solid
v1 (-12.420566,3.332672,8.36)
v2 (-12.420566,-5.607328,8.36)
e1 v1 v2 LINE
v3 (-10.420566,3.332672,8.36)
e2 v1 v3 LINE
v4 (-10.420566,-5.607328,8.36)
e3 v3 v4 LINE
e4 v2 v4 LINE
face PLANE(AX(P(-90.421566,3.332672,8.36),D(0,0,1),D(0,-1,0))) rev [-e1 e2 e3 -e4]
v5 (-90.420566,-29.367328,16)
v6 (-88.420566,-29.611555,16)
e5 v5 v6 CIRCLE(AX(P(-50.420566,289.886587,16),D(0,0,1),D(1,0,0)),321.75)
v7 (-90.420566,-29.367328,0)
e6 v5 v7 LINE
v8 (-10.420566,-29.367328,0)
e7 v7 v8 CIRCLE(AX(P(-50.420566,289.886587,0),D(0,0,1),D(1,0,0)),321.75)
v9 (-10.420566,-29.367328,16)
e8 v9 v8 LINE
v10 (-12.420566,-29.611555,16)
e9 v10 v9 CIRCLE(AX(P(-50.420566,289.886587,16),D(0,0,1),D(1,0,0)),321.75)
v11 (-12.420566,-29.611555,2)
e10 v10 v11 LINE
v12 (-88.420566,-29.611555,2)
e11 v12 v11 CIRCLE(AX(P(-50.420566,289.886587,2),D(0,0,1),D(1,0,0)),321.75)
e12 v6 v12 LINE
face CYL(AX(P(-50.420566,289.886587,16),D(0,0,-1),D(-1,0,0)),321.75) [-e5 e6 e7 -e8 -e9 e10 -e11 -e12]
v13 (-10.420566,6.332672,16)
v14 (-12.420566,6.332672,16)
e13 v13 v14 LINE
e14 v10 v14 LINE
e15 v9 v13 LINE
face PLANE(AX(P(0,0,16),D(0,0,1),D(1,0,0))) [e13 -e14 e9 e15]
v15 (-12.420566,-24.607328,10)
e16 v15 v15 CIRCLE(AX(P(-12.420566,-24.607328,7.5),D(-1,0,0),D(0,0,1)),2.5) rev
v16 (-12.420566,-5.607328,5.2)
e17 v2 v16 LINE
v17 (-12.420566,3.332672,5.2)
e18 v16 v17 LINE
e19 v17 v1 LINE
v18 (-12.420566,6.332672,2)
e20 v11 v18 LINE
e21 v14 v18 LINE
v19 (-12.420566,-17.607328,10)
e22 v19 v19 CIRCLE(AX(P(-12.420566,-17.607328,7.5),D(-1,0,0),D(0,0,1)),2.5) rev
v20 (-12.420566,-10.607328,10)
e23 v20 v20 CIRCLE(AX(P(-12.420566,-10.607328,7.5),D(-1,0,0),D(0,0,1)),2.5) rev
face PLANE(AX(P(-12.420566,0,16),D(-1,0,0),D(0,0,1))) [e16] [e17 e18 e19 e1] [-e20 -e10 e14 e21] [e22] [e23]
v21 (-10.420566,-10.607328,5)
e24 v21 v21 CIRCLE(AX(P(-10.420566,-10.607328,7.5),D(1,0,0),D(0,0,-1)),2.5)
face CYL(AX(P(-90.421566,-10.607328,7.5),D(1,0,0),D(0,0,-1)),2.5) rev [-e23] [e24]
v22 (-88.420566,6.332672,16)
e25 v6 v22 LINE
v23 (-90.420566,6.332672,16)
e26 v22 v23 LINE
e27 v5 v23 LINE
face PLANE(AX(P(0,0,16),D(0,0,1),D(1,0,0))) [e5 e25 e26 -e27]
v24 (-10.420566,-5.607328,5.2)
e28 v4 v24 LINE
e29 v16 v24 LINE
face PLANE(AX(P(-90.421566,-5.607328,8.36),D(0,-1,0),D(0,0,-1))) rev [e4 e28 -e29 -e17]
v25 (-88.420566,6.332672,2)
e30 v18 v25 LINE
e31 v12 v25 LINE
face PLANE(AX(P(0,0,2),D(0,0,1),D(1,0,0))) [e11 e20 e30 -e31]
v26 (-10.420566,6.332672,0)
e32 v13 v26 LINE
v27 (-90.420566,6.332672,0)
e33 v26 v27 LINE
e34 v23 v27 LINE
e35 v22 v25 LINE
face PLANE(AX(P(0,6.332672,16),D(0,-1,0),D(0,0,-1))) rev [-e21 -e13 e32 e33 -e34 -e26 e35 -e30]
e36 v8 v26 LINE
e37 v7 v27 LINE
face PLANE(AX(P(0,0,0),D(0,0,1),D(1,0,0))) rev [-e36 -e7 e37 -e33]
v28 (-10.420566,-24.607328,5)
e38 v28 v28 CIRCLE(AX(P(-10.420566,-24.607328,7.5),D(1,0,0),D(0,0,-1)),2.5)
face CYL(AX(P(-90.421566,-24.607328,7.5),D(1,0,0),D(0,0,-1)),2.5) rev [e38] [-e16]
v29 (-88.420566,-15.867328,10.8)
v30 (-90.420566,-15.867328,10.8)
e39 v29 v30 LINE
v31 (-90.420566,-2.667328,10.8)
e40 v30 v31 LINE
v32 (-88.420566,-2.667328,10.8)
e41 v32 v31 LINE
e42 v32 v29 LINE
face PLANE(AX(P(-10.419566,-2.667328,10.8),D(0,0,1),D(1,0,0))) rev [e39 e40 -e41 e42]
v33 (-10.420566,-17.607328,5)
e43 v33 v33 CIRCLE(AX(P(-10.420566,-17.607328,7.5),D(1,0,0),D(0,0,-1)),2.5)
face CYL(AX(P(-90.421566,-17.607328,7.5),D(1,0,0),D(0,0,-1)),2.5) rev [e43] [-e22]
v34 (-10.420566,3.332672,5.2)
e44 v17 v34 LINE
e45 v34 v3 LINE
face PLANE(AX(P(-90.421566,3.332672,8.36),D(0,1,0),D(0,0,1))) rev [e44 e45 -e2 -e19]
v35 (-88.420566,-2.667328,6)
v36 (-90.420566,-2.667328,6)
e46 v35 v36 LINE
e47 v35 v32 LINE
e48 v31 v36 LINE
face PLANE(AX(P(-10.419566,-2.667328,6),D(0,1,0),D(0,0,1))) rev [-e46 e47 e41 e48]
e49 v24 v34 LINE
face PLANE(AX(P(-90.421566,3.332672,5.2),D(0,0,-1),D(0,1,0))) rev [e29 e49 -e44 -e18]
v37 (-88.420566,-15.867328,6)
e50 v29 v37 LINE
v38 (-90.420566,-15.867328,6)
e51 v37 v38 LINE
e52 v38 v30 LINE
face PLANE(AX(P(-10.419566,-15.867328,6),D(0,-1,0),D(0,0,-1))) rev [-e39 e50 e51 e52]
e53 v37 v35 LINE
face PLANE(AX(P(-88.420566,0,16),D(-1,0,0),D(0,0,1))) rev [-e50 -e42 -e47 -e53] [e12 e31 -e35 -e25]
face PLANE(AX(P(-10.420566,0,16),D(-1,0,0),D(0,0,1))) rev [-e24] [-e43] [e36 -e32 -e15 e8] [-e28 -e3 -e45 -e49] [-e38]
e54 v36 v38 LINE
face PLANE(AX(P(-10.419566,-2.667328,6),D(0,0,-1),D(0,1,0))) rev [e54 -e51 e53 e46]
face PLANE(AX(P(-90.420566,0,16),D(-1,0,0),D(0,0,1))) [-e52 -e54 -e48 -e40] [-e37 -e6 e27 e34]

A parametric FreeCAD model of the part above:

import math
import FreeCAD as App
import Part
import Sketcher

V = App.Vector
Q = App.Units.Quantity


def faces_at(feature, points):
    """Names of the faces that lie closest to the given points."""
    faces = feature.Shape.Faces
    near = lambda p: min(range(len(faces)), key=lambda i: faces[i].distToShape(Part.Vertex(*p))[0])
    return sorted({f"Face{near(p) + 1}" for p in points})

doc = App.newDocument("Part")
body = doc.addObject("PartDesign::Body", "Body")

# Sketch on XY plane
sketch1 = body.newObject("Sketcher::SketchObject", "Sketch")
sketch1.AttachmentSupport = (doc.getObject("XY_Plane"), [""])
sketch1.MapMode = "FlatFace"
sketch1.addGeometry(Part.LineSegment(V(-90, 6, 0), V(-90, -29, 0)), False)
sketch1.addGeometry(Part.ArcOfCircle(Part.Circle(V(-50, 290, 0), V(0, 0, 1), 322), math.radians(-97.14), math.radians(-82.86)), False)
sketch1.addGeometry(Part.LineSegment(V(-10, -29, 0), V(-10, 6, 0)), False)
sketch1.addGeometry(Part.LineSegment(V(-10, 6, 0), V(-90, 6, 0)), False)
sketch1.addConstraint(Sketcher.Constraint("Coincident", 0, 2, 1, 1))
sketch1.addConstraint(Sketcher.Constraint("Coincident", 1, 2, 2, 1))
sketch1.addConstraint(Sketcher.Constraint("Coincident", 2, 2, 3, 1))
sketch1.addConstraint(Sketcher.Constraint("Coincident", 3, 2, 0, 1))
sketch1.addConstraint(Sketcher.Constraint("Vertical", 0))
sketch1.addConstraint(Sketcher.Constraint("Vertical", 2))
sketch1.addConstraint(Sketcher.Constraint("Horizontal", 3))
sketch1.addConstraint(Sketcher.Constraint("Horizontal", 0, 2, 1, 2))
sketch1.addConstraint(Sketcher.Constraint("DistanceX", 3, 2, 3, 1, Q("80 mm")))
sketch1.addConstraint(Sketcher.Constraint("Radius", 1, Q("321.75 mm")))
sketch1.addConstraint(Sketcher.Constraint("DistanceY", 0, 2, 0, 1, Q("35.7 mm")))
sketch1.addConstraint(Sketcher.Constraint("DistanceY", 0, 2, -1, 1, Q("29.367328 mm")))
sketch1.addConstraint(Sketcher.Constraint("DistanceX", 1, 3, -1, 1, Q("50.420566 mm")))
pad1 = body.newObject("PartDesign::Pad", "Pad")
pad1.Profile = sketch1
pad1.Length = 16
doc.recompute()

thickness = body.newObject("PartDesign::Thickness", "Thickness")
thickness.Base = (pad1, faces_at(pad1, [(-50.421, -12.765, 16), (-50.421, 6.333, 8), (-50.421, -31.863, 8)]))
thickness.Value = 2
thickness.Reversed = True
thickness.Join = "Intersection"

# Sketch on YZ plane
sketch2 = body.newObject("Sketcher::SketchObject", "Sketch001")
sketch2.AttachmentSupport = (doc.getObject("YZ_Plane"), [""])
sketch2.MapMode = "FlatFace"
sketch2.AttachmentOffset = App.Placement(V(0, 0, -90.420566), App.Rotation())
sketch2.addGeometry(Part.LineSegment(V(-2.7, 6, 0), V(-15.9, 6, 0)), False)
sketch2.addGeometry(Part.LineSegment(V(-15.9, 6, 0), V(-15.9, 10.8, 0)), False)
sketch2.addGeometry(Part.LineSegment(V(-15.9, 10.8, 0), V(-2.7, 10.8, 0)), False)
sketch2.addGeometry(Part.LineSegment(V(-2.7, 10.8, 0), V(-2.7, 6, 0)), False)
sketch2.addConstraint(Sketcher.Constraint("Coincident", 0, 2, 1, 1))
sketch2.addConstraint(Sketcher.Constraint("Coincident", 1, 2, 2, 1))
sketch2.addConstraint(Sketcher.Constraint("Coincident", 2, 2, 3, 1))
sketch2.addConstraint(Sketcher.Constraint("Coincident", 3, 2, 0, 1))
sketch2.addConstraint(Sketcher.Constraint("Horizontal", 0))
sketch2.addConstraint(Sketcher.Constraint("Vertical", 1))
sketch2.addConstraint(Sketcher.Constraint("Horizontal", 2))
sketch2.addConstraint(Sketcher.Constraint("Vertical", 3))
sketch2.addConstraint(Sketcher.Constraint("DistanceX", 0, 2, 0, 1, Q("13.2 mm")))
sketch2.addConstraint(Sketcher.Constraint("DistanceY", 1, 1, 1, 2, Q("4.8 mm")))
sketch2.addConstraint(Sketcher.Constraint("DistanceY", -1, 1, 0, 2, Q("6 mm")))
sketch2.addConstraint(Sketcher.Constraint("DistanceX", 0, 2, -1, 1, Q("15.867328 mm")))
pocket1 = body.newObject("PartDesign::Pocket", "Pocket")
pocket1.Profile = sketch2
pocket1.Type = "UpToFirst"
pocket1.Reversed = True

# Sketch on YZ plane
sketch3 = body.newObject("Sketcher::SketchObject", "Sketch002")
sketch3.AttachmentSupport = (doc.getObject("YZ_Plane"), [""])
sketch3.MapMode = "FlatFace"
sketch3.AttachmentOffset = App.Placement(V(0, 0, -10.420566), App.Rotation())
sketch3.addGeometry(Part.Circle(V(-10.6, 7.5, 0), V(0, 0, 1), 2.5), False)
sketch3.addConstraint(Sketcher.Constraint("Diameter", 0, Q("5 mm")))
sketch3.addConstraint(Sketcher.Constraint("DistanceY", -1, 1, 0, 3, Q("7.5 mm")))
sketch3.addConstraint(Sketcher.Constraint("DistanceX", 0, 3, -1, 1, Q("10.607328 mm")))
pocket2 = body.newObject("PartDesign::Pocket", "Pocket001")
pocket2.Profile = sketch3
pocket2.Type = "UpToFirst"

# Sketch on YZ plane
sketch4 = body.newObject("Sketcher::SketchObject", "Sketch003")
sketch4.AttachmentSupport = (doc.getObject("YZ_Plane"), [""])
sketch4.MapMode = "FlatFace"
sketch4.AttachmentOffset = App.Placement(V(0, 0, -10.420566), App.Rotation())
sketch4.addGeometry(Part.Circle(V(-17.6, 7.5, 0), V(0, 0, 1), 2.5), False)
sketch4.addConstraint(Sketcher.Constraint("Diameter", 0, Q("5 mm")))
sketch4.addConstraint(Sketcher.Constraint("DistanceY", -1, 1, 0, 3, Q("7.5 mm")))
sketch4.addConstraint(Sketcher.Constraint("DistanceX", 0, 3, -1, 1, Q("17.607328 mm")))
pocket3 = body.newObject("PartDesign::Pocket", "Pocket002")
pocket3.Profile = sketch4
pocket3.Type = "UpToFirst"

# Sketch on YZ plane
sketch5 = body.newObject("Sketcher::SketchObject", "Sketch004")
sketch5.AttachmentSupport = (doc.getObject("YZ_Plane"), [""])
sketch5.MapMode = "FlatFace"
sketch5.AttachmentOffset = App.Placement(V(0, 0, -10.420566), App.Rotation())
sketch5.addGeometry(Part.Circle(V(-24.6, 7.5, 0), V(0, 0, 1), 2.5), False)
sketch5.addConstraint(Sketcher.Constraint("Diameter", 0, Q("5 mm")))
sketch5.addConstraint(Sketcher.Constraint("DistanceY", -1, 1, 0, 3, Q("7.5 mm")))
sketch5.addConstraint(Sketcher.Constraint("DistanceX", 0, 3, -1, 1, Q("24.607328 mm")))
pocket4 = body.newObject("PartDesign::Pocket", "Pocket003")
pocket4.Profile = sketch5
pocket4.Type = "UpToFirst"

# Sketch on YZ plane
sketch6 = body.newObject("Sketcher::SketchObject", "Sketch005")
sketch6.AttachmentSupport = (doc.getObject("YZ_Plane"), [""])
sketch6.MapMode = "FlatFace"
sketch6.AttachmentOffset = App.Placement(V(0, 0, -10.420566), App.Rotation())
sketch6.addGeometry(Part.LineSegment(V(3.3, 8.4, 0), V(-5.6, 8.4, 0)), False)
sketch6.addGeometry(Part.LineSegment(V(-5.6, 8.4, 0), V(-5.6, 5.2, 0)), False)
sketch6.addGeometry(Part.LineSegment(V(-5.6, 5.2, 0), V(3.3, 5.2, 0)), False)
sketch6.addGeometry(Part.LineSegment(V(3.3, 5.2, 0), V(3.3, 8.4, 0)), False)
sketch6.addConstraint(Sketcher.Constraint("Coincident", 0, 2, 1, 1))
sketch6.addConstraint(Sketcher.Constraint("Coincident", 1, 2, 2, 1))
sketch6.addConstraint(Sketcher.Constraint("Coincident", 2, 2, 3, 1))
sketch6.addConstraint(Sketcher.Constraint("Coincident", 3, 2, 0, 1))
sketch6.addConstraint(Sketcher.Constraint("Horizontal", 0))
sketch6.addConstraint(Sketcher.Constraint("Vertical", 1))
sketch6.addConstraint(Sketcher.Constraint("Horizontal", 2))
sketch6.addConstraint(Sketcher.Constraint("Vertical", 3))
sketch6.addConstraint(Sketcher.Constraint("DistanceX", 0, 2, 0, 1, Q("8.94 mm")))
sketch6.addConstraint(Sketcher.Constraint("DistanceY", 1, 2, 1, 1, Q("3.16 mm")))
sketch6.addConstraint(Sketcher.Constraint("DistanceY", -1, 1, 1, 2, Q("5.2 mm")))
sketch6.addConstraint(Sketcher.Constraint("DistanceX", 0, 2, -1, 1, Q("5.607328 mm")))
pocket5 = body.newObject("PartDesign::Pocket", "Pocket004")
pocket5.Profile = sketch6
pocket5.Type = "UpToFirst"

doc.recompute()
